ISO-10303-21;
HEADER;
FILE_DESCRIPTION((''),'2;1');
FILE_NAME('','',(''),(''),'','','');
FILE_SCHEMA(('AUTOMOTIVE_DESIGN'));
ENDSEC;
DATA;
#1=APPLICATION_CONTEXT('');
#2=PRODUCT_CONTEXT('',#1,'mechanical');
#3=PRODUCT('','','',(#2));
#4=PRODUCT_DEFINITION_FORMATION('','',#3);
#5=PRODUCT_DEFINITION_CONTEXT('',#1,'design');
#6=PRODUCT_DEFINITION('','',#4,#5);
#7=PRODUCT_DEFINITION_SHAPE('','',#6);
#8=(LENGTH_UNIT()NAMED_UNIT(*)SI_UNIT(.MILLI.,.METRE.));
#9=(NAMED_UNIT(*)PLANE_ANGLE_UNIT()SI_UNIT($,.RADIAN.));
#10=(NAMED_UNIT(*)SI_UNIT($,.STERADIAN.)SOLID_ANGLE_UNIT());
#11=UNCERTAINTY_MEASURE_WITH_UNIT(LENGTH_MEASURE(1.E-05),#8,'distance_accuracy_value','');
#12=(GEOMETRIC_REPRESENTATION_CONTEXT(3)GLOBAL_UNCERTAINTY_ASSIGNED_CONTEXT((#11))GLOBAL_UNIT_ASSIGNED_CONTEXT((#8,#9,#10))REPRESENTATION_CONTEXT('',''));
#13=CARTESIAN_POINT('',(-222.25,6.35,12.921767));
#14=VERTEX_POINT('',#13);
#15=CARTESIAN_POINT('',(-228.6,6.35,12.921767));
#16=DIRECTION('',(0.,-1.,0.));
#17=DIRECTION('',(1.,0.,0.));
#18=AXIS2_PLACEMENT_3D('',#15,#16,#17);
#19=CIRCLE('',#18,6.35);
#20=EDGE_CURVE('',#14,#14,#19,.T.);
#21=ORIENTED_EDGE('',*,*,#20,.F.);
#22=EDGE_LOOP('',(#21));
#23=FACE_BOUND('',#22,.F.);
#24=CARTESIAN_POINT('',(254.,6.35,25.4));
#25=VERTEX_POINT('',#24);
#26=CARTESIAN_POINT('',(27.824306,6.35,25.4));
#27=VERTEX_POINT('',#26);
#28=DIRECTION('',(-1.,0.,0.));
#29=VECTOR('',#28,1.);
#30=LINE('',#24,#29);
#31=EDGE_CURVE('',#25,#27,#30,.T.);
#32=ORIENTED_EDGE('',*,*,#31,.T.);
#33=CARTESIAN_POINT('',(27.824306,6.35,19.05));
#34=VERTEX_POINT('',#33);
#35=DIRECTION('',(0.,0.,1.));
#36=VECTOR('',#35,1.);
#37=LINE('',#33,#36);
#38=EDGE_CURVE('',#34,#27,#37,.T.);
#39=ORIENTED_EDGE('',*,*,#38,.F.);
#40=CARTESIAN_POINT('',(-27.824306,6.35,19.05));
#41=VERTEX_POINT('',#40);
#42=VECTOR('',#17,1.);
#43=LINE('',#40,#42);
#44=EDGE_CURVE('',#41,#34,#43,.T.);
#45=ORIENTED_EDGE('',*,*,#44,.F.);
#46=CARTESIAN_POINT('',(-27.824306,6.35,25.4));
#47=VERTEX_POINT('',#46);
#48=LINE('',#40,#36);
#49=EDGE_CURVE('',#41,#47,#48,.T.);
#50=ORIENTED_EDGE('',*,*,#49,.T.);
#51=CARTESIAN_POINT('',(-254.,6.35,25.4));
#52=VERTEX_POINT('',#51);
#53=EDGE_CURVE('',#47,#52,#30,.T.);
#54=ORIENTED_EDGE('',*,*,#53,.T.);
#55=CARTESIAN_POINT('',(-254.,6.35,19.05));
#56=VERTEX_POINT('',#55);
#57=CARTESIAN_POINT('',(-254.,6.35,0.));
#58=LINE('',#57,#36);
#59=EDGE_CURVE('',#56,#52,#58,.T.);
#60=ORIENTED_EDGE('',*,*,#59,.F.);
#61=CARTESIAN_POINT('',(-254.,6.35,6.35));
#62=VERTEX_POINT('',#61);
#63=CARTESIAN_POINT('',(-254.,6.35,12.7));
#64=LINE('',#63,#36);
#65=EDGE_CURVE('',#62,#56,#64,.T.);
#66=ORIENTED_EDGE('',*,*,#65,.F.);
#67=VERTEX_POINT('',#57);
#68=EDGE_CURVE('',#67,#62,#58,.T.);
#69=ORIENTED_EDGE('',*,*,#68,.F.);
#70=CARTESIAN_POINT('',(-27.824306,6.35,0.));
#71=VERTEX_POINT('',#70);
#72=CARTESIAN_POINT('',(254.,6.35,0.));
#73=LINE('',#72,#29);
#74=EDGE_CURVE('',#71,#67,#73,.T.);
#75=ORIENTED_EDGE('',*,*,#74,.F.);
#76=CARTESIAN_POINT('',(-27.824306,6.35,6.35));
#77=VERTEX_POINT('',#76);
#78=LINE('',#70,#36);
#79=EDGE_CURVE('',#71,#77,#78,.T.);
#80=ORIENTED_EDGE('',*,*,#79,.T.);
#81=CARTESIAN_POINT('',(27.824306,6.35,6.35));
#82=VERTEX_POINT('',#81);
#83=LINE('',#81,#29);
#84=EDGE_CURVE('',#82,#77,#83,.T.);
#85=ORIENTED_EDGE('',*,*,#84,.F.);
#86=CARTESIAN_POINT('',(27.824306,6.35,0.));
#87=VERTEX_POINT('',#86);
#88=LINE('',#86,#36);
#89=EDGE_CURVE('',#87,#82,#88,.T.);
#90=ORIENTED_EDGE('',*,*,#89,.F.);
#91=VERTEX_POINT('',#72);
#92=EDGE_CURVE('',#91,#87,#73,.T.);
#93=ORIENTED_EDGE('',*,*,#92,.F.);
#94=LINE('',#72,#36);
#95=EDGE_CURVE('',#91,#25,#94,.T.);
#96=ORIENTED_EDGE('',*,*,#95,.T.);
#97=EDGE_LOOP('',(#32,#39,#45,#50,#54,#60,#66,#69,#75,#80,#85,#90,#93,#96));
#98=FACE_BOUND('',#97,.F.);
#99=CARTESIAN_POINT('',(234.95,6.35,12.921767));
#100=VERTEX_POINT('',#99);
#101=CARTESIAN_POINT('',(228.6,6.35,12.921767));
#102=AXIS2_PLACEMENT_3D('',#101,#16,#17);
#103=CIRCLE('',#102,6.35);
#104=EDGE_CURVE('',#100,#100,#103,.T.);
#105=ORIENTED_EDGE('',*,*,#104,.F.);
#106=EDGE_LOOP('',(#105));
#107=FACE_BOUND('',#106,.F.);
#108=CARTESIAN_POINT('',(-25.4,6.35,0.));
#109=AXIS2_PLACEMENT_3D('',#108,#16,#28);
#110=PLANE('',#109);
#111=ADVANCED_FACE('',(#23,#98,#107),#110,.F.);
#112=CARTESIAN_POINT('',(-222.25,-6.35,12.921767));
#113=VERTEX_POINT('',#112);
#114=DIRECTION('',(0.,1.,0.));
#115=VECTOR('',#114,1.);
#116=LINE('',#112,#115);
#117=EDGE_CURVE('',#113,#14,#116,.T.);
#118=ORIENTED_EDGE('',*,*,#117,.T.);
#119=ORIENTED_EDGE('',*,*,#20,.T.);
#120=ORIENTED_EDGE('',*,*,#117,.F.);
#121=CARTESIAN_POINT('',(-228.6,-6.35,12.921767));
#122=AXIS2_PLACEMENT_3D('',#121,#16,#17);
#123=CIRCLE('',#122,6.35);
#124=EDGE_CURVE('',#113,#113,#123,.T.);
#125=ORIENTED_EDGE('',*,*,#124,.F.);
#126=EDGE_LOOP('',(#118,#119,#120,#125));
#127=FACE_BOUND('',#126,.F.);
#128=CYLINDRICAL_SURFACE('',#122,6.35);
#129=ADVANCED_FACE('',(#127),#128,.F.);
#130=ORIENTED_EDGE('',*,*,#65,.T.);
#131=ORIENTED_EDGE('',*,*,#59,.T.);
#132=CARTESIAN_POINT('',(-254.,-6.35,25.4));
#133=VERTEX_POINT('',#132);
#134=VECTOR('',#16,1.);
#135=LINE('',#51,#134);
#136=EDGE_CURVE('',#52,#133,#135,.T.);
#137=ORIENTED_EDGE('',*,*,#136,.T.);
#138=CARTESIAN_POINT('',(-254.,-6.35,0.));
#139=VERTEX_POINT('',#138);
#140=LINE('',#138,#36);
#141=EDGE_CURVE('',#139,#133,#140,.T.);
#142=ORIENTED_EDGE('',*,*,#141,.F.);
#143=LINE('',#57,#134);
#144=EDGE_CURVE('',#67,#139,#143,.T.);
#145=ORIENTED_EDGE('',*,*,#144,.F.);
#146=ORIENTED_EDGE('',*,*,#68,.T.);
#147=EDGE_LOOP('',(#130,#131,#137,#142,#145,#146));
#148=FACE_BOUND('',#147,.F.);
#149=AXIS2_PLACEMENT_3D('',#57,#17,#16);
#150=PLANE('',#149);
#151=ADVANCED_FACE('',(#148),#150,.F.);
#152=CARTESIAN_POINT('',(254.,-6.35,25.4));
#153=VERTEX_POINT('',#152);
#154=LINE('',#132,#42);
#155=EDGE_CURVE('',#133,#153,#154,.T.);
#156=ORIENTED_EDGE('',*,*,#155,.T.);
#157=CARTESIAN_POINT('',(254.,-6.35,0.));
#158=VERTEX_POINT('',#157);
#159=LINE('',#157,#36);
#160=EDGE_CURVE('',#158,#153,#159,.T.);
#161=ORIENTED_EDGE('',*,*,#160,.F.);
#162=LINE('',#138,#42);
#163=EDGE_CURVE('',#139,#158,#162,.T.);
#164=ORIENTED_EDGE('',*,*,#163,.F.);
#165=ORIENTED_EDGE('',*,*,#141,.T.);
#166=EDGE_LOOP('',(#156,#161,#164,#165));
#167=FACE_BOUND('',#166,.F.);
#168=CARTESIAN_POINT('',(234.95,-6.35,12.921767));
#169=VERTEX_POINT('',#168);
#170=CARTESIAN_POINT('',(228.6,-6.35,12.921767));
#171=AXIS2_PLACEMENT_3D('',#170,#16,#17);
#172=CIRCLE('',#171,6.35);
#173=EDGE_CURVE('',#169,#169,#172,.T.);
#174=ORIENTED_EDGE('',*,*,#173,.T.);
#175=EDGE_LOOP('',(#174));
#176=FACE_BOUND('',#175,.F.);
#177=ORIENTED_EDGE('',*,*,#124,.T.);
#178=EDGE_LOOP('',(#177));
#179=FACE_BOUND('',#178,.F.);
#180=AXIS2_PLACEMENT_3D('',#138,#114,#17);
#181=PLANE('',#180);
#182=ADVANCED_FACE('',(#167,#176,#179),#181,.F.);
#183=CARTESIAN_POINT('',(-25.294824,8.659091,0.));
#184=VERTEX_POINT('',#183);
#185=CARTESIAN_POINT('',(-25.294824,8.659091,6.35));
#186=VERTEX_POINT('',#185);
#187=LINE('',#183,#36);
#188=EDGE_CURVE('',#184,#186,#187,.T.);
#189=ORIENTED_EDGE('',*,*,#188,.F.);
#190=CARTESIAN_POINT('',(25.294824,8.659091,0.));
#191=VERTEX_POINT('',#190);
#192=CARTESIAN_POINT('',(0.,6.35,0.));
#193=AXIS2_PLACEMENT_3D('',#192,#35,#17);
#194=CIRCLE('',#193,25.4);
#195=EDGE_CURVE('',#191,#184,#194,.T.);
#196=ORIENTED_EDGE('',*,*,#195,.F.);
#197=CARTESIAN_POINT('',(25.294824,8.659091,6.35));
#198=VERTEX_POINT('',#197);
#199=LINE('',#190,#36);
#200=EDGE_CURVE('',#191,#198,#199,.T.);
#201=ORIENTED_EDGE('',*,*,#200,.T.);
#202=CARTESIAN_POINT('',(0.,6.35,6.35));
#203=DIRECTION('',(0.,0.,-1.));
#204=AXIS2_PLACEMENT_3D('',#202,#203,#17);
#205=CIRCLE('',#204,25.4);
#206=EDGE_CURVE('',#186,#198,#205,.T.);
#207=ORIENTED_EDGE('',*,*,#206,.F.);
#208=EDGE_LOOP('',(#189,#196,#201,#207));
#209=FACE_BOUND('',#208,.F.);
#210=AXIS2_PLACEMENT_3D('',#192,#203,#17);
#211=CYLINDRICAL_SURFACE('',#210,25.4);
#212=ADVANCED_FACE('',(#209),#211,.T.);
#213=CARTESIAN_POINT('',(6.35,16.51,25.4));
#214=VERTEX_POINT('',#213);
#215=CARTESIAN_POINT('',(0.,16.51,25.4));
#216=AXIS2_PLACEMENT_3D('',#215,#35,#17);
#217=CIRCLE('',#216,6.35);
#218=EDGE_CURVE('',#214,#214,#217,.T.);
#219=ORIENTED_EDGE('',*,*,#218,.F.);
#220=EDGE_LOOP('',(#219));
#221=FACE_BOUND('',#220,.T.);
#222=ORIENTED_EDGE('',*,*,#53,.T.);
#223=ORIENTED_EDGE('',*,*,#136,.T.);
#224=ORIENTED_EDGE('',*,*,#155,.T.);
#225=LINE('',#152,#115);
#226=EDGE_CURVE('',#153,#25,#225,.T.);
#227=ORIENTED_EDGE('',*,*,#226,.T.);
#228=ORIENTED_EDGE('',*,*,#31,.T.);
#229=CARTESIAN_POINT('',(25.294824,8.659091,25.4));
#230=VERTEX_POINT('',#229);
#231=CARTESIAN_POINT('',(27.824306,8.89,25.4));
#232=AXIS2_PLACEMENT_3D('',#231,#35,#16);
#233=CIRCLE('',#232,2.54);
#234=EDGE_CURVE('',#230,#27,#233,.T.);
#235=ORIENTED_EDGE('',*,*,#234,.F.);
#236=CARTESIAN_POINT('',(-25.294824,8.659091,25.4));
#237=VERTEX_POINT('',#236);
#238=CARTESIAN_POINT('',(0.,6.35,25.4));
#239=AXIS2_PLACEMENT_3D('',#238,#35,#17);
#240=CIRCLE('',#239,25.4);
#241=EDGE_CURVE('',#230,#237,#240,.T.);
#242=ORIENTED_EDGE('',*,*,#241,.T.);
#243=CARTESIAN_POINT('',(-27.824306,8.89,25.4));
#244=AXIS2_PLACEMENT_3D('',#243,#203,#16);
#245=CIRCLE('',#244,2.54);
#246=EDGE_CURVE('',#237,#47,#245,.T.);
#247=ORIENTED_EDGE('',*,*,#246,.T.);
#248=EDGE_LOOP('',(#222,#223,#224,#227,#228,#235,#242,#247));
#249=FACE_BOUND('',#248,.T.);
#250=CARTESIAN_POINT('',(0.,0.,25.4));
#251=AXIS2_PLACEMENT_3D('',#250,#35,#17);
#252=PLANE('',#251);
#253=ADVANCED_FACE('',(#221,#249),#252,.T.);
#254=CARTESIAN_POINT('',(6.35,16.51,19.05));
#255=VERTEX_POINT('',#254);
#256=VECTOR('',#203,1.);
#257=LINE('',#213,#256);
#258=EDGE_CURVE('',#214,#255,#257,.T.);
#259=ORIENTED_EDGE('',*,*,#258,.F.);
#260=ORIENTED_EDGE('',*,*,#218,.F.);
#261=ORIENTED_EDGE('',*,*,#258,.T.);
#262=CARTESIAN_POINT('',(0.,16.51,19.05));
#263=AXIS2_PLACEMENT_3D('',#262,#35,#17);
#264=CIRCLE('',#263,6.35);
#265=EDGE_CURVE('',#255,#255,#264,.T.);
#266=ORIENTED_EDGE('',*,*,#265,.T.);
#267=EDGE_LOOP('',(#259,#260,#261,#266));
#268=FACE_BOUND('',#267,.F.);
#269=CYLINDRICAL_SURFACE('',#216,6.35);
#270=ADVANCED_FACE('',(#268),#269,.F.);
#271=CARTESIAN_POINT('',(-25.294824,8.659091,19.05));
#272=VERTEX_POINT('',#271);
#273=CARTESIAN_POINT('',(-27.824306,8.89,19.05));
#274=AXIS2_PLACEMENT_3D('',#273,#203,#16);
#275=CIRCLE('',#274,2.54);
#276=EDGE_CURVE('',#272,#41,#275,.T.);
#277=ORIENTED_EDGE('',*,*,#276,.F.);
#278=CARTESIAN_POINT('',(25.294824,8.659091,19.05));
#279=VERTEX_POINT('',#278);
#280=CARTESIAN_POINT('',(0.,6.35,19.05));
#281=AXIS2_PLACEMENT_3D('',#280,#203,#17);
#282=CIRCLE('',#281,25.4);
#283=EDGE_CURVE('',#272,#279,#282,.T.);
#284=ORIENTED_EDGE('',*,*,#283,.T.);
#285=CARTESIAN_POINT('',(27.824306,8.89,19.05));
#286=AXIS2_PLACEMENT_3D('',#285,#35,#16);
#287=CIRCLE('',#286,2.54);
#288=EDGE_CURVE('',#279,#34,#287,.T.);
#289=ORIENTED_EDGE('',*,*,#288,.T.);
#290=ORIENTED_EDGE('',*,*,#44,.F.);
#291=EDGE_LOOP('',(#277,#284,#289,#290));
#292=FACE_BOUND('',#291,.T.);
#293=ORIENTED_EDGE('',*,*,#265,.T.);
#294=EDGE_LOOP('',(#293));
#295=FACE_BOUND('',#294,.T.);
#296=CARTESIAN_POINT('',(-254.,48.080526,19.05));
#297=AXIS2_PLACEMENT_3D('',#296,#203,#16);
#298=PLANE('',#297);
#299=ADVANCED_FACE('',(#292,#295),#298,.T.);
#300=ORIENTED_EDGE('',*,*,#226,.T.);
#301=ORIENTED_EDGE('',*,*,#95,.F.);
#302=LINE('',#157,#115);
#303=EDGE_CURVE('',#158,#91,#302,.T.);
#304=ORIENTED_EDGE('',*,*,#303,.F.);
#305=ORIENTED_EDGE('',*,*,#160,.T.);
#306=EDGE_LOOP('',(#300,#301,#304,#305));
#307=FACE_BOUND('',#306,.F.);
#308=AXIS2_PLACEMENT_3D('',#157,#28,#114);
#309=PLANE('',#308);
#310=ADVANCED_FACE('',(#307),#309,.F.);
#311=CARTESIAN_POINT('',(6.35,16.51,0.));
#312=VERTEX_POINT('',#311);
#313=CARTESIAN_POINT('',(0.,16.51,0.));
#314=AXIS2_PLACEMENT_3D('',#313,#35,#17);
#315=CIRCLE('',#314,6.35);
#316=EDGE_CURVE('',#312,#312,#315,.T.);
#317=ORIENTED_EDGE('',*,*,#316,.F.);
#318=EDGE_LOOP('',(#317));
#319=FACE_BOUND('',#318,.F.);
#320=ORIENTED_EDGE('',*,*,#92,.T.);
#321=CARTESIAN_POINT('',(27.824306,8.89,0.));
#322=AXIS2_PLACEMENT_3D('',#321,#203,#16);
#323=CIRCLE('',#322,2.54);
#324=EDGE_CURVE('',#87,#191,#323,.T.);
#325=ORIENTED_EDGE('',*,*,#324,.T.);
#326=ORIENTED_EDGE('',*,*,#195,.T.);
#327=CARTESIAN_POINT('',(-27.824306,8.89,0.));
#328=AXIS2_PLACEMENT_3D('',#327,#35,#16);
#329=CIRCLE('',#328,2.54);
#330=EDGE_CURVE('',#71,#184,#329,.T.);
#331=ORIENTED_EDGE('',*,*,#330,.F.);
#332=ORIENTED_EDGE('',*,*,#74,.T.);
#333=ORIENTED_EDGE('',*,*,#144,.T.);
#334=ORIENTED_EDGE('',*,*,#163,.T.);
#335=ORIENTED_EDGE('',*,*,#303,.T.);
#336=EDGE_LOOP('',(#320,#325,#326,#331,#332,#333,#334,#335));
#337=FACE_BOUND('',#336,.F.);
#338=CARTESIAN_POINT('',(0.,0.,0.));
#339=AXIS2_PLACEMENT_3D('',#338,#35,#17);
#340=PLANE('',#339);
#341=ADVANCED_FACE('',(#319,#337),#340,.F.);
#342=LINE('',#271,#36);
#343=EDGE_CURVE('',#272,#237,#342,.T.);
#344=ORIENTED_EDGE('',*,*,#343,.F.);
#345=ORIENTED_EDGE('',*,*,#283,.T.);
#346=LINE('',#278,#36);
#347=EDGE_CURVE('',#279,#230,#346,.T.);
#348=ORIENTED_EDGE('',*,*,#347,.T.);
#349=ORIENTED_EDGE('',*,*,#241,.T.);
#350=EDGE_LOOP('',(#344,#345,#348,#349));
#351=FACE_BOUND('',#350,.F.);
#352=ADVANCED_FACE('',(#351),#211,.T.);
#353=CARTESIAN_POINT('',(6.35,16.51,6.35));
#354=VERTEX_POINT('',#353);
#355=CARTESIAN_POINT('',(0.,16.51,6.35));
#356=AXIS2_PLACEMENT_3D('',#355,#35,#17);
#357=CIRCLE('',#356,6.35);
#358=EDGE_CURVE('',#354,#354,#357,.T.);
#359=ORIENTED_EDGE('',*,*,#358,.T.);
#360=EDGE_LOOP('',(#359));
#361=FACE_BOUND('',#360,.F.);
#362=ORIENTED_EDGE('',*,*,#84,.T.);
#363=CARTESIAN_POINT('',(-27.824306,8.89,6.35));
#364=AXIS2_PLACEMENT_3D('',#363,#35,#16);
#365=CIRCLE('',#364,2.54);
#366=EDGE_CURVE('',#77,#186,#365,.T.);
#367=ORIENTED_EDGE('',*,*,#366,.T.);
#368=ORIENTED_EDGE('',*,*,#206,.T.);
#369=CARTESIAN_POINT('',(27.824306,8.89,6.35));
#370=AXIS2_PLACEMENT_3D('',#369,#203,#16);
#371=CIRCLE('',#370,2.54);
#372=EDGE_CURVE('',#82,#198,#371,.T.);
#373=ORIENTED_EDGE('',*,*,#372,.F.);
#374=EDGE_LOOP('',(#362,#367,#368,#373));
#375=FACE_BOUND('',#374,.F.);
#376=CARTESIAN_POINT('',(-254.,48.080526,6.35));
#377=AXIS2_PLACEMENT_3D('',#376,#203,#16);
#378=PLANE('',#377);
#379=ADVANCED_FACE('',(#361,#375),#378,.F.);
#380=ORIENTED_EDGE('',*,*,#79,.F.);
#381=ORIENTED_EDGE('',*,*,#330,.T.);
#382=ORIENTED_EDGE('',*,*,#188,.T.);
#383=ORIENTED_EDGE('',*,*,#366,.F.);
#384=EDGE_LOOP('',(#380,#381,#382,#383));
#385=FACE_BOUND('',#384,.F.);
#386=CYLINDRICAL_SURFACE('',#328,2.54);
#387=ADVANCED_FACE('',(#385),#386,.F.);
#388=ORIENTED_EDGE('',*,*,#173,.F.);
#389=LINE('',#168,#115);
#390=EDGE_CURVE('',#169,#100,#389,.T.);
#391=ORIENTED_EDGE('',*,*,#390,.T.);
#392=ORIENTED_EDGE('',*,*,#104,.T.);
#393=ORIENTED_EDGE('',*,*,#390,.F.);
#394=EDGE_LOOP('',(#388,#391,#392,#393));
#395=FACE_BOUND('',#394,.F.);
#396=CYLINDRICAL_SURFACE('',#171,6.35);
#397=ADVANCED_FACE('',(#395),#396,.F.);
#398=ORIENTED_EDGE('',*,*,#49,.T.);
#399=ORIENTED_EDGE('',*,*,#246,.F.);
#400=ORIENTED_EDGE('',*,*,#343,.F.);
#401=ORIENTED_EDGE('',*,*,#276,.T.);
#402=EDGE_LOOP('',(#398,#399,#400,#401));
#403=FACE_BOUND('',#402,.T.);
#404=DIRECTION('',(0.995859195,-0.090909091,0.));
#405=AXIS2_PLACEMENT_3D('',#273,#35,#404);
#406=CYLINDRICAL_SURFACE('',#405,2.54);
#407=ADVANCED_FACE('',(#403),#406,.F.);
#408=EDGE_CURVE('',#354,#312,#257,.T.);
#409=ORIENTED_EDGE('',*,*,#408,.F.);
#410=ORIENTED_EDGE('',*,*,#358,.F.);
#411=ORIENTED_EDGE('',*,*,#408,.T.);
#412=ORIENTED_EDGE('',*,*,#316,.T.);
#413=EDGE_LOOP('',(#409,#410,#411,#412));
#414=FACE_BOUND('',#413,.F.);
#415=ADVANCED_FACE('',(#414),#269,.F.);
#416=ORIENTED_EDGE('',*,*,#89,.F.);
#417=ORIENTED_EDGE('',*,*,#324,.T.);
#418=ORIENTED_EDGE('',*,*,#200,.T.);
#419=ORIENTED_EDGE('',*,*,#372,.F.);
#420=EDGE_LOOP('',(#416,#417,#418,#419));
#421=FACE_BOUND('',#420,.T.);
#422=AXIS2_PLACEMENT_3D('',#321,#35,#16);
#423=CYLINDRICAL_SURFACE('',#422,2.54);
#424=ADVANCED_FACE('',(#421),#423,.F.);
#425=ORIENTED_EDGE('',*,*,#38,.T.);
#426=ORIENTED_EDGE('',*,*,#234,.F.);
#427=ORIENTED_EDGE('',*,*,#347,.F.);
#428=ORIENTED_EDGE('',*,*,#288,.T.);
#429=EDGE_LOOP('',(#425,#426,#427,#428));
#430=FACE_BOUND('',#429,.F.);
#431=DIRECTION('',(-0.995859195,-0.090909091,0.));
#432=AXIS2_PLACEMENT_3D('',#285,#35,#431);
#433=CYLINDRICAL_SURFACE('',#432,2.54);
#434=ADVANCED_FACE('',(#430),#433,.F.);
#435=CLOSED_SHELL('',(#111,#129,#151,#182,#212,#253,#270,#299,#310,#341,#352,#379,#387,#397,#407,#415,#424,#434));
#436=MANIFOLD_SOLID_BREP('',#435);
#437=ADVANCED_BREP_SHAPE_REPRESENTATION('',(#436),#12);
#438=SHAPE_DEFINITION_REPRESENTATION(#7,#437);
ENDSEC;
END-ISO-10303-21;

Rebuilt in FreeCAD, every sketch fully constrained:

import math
import FreeCAD as App
import Part
import Sketcher
from FreeCAD import Vector
Q = App.Units.Quantity


def edges_at(feature, points):
    """Names of the edges that pass closest to the given points."""
    edges = feature.Shape.Edges
    near = lambda p: min(range(len(edges)), key=lambda i: edges[i].distToShape(Part.Vertex(*p))[0])
    return sorted({f"Edge{near(p) + 1}" for p in points})

doc = App.newDocument("Part")
params = doc.addObject("Spreadsheet::Sheet", "Params")
for row, (alias, value) in enumerate([
    ("sketch1_radius", "1 in"),
    ("sketch1_width", "20 in"),
    ("sketch1_height", "0.5 in"),
    ("pad1_length", "1 in"),
    ("sketch2_diameter", "0.5 in"),
    ("sketch3_height", "0.5 in"),
    ("fillet_radius", "0.1 in"),
    ("sketch4_diameter", "0.5 in"),
], start=1):
    params.set(f"A{row}", alias)
    params.set(f"B{row}", "=" + value)
    params.setAlias(f"B{row}", alias)

body = doc.addObject("PartDesign::Body", "Body")

# Sketch on XY plane
sketch1 = body.newObject("Sketcher::SketchObject", "Sketch")
sketch1.AttachmentSupport = (doc.getObject("XY_Plane"), [""])
sketch1.MapMode = "FlatFace"
sketch1.addGeometry([
    Part.LineSegment(Vector(-254, -6, 0), Vector(254, -6, 0)),  # 0
    Part.LineSegment(Vector(254, -6, 0), Vector(254, 6, 0)),  # 1
    Part.LineSegment(Vector(254, 6, 0), Vector(25, 6, 0)),  # 2
    Part.ArcOfCircle(Part.Circle(Vector(0, 6, 0), Vector(0, 0, 1), 25), math.radians(0), math.radians(180)),  # 3
    Part.LineSegment(Vector(-25, 6, 0), Vector(-254, 6, 0)),  # 4
    Part.LineSegment(Vector(-254, 6, 0), Vector(-254, -6, 0)),  # 5
], False)
sketch1.addConstraint([
    Sketcher.Constraint("Coincident", 0, 2, 1, 1),
    Sketcher.Constraint("Coincident", 1, 2, 2, 1),
    Sketcher.Constraint("Coincident", 2, 2, 3, 1),
    Sketcher.Constraint("Coincident", 3, 2, 4, 1),
    Sketcher.Constraint("Coincident", 4, 2, 5, 1),
    Sketcher.Constraint("Coincident", 5, 2, 0, 1),
    Sketcher.Constraint("Horizontal", 0),
    Sketcher.Constraint("Vertical", 1),
    Sketcher.Constraint("Horizontal", 2),
    Sketcher.Constraint("Horizontal", 4),
    Sketcher.Constraint("Vertical", 5),
    Sketcher.Constraint("Symmetric", 0, 2, 4, 2, -1, 1),
    Sketcher.Constraint("Symmetric", 2, 2, 3, 2, -2),
    Sketcher.Constraint("Horizontal", 3, 3, 1, 2),
    Sketcher.Constraint("Radius", 3, Q("1 in")),
    Sketcher.Constraint("DistanceX", 0, 1, 0, 2, Q("20 in")),
    Sketcher.Constraint("DistanceY", 1, 1, 1, 2, Q("0.5 in")),
])
sketch1.setExpression("Constraints[14]", "Params.sketch1_radius")
sketch1.setExpression("Constraints[15]", "Params.sketch1_width")
sketch1.setExpression("Constraints[16]", "Params.sketch1_height")
pad1 = body.newObject("PartDesign::Pad", "Pad")
pad1.Profile = sketch1
pad1.setExpression("Length", "Params.pad1_length")

# Sketch on XY plane
sketch2 = body.newObject("Sketcher::SketchObject", "Sketch001")
sketch2.AttachmentSupport = (doc.getObject("XY_Plane"), [""])
sketch2.MapMode = "FlatFace"
sketch2.AttachmentOffset = App.Placement(Vector(0, 0, 1 * 25.4), App.Rotation())
sketch2.addGeometry(Part.Circle(Vector(0, 17, 0), Vector(0, 0, 1), 6), False)
sketch2.addConstraint([
    Sketcher.Constraint("PointOnObject", 0, 3, -2),
    Sketcher.Constraint("Diameter", 0, Q("0.5 in")),
    Sketcher.Constraint("DistanceY", -1, 1, 0, 3, Q("0.65 in")),
])
sketch2.setExpression("Constraints[1]", "Params.sketch2_diameter")
pocket1 = body.newObject("PartDesign::Pocket", "Pocket")
pocket1.Profile = sketch2
pocket1.Type = "ThroughAll"

# Sketch on YZ plane
sketch3 = body.newObject("Sketcher::SketchObject", "Sketch002")
sketch3.AttachmentSupport = (doc.getObject("YZ_Plane"), [""])
sketch3.MapMode = "FlatFace"
sketch3.AttachmentOffset = App.Placement(Vector(0, 0, -10 * 25.4), App.Rotation())
sketch3.addGeometry([
    Part.LineSegment(Vector(48, 19, 0), Vector(48, 6, 0)),
    Part.LineSegment(Vector(48, 6, 0), Vector(6, 6, 0)),
    Part.LineSegment(Vector(6, 6, 0), Vector(6, 19, 0)),
    Part.LineSegment(Vector(6, 19, 0), Vector(48, 19, 0)),
], False)
sketch3.addConstraint([
    Sketcher.Constraint("Coincident", 0, 2, 1, 1),
    Sketcher.Constraint("Coincident", 1, 2, 2, 1),
    Sketcher.Constraint("Coincident", 2, 2, 3, 1),
    Sketcher.Constraint("Coincident", 3, 2, 0, 1),
    Sketcher.Constraint("Vertical", 0),
    Sketcher.Constraint("Horizontal", 1),
    Sketcher.Constraint("Vertical", 2),
    Sketcher.Constraint("Horizontal", 3),
    Sketcher.Constraint("DistanceY", 0, 2, 0, 1, Q("0.5 in")),
    Sketcher.Constraint("DistanceY", -1, 1, 0, 2, Q("0.25 in")),
    Sketcher.Constraint("DistanceX", -1, 1, 1, 2, Q("0.25 in")),
    Sketcher.Constraint("DistanceX", 1, 2, 1, 1, 41.730526),
])
sketch3.setExpression("Constraints[8]", "Params.sketch3_height")
pocket2 = body.newObject("PartDesign::Pocket", "Pocket001")
pocket2.Profile = sketch3
pocket2.Type = "ThroughAll"
pocket2.Reversed = True
doc.recompute()

fillet = body.newObject("PartDesign::Fillet", "Fillet")
fillet.Base = (pocket2, edges_at(pocket2, [
    (-25.4, 6.35, 3.175),
    (-25.4, 6.35, 22.225),
    (25.4, 6.35, 22.225),
    (25.4, 6.35, 3.175),
]))
fillet.setExpression("Radius", "Params.fillet_radius")

# Sketch on XZ plane
sketch4 = body.newObject("Sketcher::SketchObject", "Sketch003")
sketch4.AttachmentSupport = (doc.getObject("XZ_Plane"), [""])
sketch4.MapMode = "FlatFace"
sketch4.AttachmentOffset = App.Placement(Vector(0, 0, 0.25 * 25.4), App.Rotation())
sketch4.addGeometry([
    Part.Circle(Vector(-229, 13, 0), Vector(0, 0, 1), 6),
    Part.Circle(Vector(229, 13, 0), Vector(0, 0, 1), 6),
], False)
sketch4.addConstraint([
    Sketcher.Constraint("Equal", 0, 1),
    Sketcher.Constraint("Symmetric", 0, 3, 1, 3, -2),
    Sketcher.Constraint("Diameter", 0, Q("0.5 in")),
    Sketcher.Constraint("DistanceX", 0, 3, -1, 1, Q("9 in")),
    Sketcher.Constraint("DistanceY", -1, 1, 0, 3, 12.921767),
])
sketch4.setExpression("Constraints[2]", "Params.sketch4_diameter")
pocket3 = body.newObject("PartDesign::Pocket", "Pocket002")
pocket3.Profile = sketch4
pocket3.Type = "ThroughAll"

doc.recompute()
